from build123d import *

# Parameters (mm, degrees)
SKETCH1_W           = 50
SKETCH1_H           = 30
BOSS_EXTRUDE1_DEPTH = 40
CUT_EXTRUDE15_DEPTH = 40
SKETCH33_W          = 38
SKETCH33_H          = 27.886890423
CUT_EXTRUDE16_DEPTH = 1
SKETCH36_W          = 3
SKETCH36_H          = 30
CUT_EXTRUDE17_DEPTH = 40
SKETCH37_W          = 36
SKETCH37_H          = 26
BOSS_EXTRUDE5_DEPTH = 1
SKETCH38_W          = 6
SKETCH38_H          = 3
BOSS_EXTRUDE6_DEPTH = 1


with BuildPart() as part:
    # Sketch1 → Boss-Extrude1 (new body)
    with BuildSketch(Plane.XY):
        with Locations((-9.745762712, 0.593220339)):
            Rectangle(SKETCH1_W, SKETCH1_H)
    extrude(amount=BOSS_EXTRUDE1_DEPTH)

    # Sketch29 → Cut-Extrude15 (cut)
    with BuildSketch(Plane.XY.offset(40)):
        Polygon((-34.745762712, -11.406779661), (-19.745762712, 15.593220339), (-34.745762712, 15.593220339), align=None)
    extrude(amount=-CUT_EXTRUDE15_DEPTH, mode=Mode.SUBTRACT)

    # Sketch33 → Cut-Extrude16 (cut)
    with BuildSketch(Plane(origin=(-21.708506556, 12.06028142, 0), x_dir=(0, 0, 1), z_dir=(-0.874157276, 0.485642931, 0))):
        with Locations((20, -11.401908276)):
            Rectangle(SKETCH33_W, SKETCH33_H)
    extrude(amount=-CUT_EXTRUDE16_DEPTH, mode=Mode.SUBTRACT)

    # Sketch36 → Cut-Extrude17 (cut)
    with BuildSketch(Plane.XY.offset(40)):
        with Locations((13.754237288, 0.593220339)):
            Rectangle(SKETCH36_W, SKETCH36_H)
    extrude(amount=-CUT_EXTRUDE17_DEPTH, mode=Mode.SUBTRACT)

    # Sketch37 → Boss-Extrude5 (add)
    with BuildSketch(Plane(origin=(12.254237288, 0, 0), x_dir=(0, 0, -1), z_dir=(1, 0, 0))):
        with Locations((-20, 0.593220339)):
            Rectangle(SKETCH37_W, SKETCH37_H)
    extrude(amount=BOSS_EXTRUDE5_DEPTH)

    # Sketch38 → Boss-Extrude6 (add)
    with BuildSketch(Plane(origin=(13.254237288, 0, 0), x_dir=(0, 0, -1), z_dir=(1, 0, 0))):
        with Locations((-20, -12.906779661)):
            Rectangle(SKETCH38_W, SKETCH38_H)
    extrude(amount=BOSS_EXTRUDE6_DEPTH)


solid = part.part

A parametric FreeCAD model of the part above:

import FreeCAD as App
import Part
import Sketcher
from FreeCAD import Vector
Q = App.Units.Quantity


def add_polygon(sketch, points):
    """Adds a closed chain of lines whose ends are joined by coincident constraints."""
    first, n = sketch.GeometryCount, len(points)
    for a, b in zip(points, points[1:] + points[:1]):
        sketch.addGeometry(Part.LineSegment(App.Vector(*a, 0), App.Vector(*b, 0)), False)
    for i in range(n):
        sketch.addConstraint(Sketcher.Constraint("Coincident", first + i, 2, first + (i + 1) % n, 1))

doc = App.newDocument("Part")
body = doc.addObject("PartDesign::Body", "Body")

sketch1 = doc.addObject("Sketcher::SketchObject", "Sketch")
body.addObject(sketch1)
sketch1.AttachmentSupport = (doc.XY_Plane, [""])
sketch1.MapMode = "FlatFace"
add_polygon(sketch1, [(-35, 16), (-35, -14), (15, -14), (15, 16)])
sketch1.addConstraint(Sketcher.Constraint("Vertical", 0))
sketch1.addConstraint(Sketcher.Constraint("Horizontal", 1))
sketch1.addConstraint(Sketcher.Constraint("Vertical", 2))
sketch1.addConstraint(Sketcher.Constraint("Horizontal", 3))
sketch1.addConstraint(Sketcher.Constraint("DistanceX", 1, 1, 1, 2, Q("50 mm")))
sketch1.addConstraint(Sketcher.Constraint("DistanceY", 0, 2, 0, 1, Q("30 mm")))
sketch1.addConstraint(Sketcher.Constraint("DistanceY", 0, 2, -1, 1, Q("14.40678 mm")))
sketch1.addConstraint(Sketcher.Constraint("DistanceX", 0, 2, -1, 1, Q("34.745763 mm")))
pad1 = doc.addObject("PartDesign::Pad", "Pad")
body.addObject(pad1)
pad1.Profile = sketch1
pad1.Length = 40

sketch2 = doc.addObject("Sketcher::SketchObject", "Sketch001")
body.addObject(sketch2)
sketch2.AttachmentSupport = (doc.XY_Plane, [""])
sketch2.MapMode = "FlatFace"
sketch2.AttachmentOffset = App.Placement(Vector(0, 0, 40), App.Rotation())
add_polygon(sketch2, [(-35, -11), (-20, 16), (-35, 16)])
sketch2.addConstraint(Sketcher.Constraint("Horizontal", 1))
sketch2.addConstraint(Sketcher.Constraint("Vertical", 2))
sketch2.addConstraint(Sketcher.Constraint("DistanceX", 1, 2, 1, 1, Q("15 mm")))
sketch2.addConstraint(Sketcher.Constraint("DistanceY", 2, 2, 2, 1, Q("27 mm")))
sketch2.addConstraint(Sketcher.Constraint("DistanceY", -1, 1, 0, 2, Q("15.59322 mm")))
sketch2.addConstraint(Sketcher.Constraint("DistanceX", 0, 2, -1, 1, Q("19.745763 mm")))
pocket1 = doc.addObject("PartDesign::Pocket", "Pocket")
body.addObject(pocket1)
pocket1.Profile = sketch2
pocket1.Length = 40

sketch3 = doc.addObject("Sketcher::SketchObject", "Sketch002")
body.addObject(sketch3)
sketch3.Placement = App.Placement(Vector(-21.708507, 12.060281, 0), App.Rotation(Vector(0, 0, 1), Vector(0.485642931, 0.874157276, 0), Vector(-0.874157276, 0.485642931, 0), "ZXY"))
add_polygon(sketch3, [(1, 3), (1, -25), (39, -25), (39, 3)])
sketch3.addConstraint(Sketcher.Constraint("Vertical", 0))
sketch3.addConstraint(Sketcher.Constraint("Horizontal", 1))
sketch3.addConstraint(Sketcher.Constraint("Vertical", 2))
sketch3.addConstraint(Sketcher.Constraint("Horizontal", 3))
sketch3.addConstraint(Sketcher.Constraint("DistanceX", 1, 1, 1, 2, Q("38 mm")))
sketch3.addConstraint(Sketcher.Constraint("DistanceX", -1, 1, 0, 2, Q("1 mm")))
sketch3.addConstraint(Sketcher.Constraint("DistanceY", 0, 2, 0, 1, Q("27.88689 mm")))
sketch3.addConstraint(Sketcher.Constraint("DistanceY", 0, 2, -1, 1, Q("25.345353 mm")))
pocket2 = doc.addObject("PartDesign::Pocket", "Pocket001")
body.addObject(pocket2)
pocket2.Profile = sketch3
pocket2.Length = 1

sketch4 = doc.addObject("Sketcher::SketchObject", "Sketch003")
body.addObject(sketch4)
sketch4.AttachmentSupport = (doc.XY_Plane, [""])
sketch4.MapMode = "FlatFace"
sketch4.AttachmentOffset = App.Placement(Vector(0, 0, 40), App.Rotation())
add_polygon(sketch4, [(12.3, 15.6), (12.3, -14.4), (15.3, -14.4), (15.3, 15.6)])
sketch4.addConstraint(Sketcher.Constraint("Vertical", 0))
sketch4.addConstraint(Sketcher.Constraint("Horizontal", 1))
sketch4.addConstraint(Sketcher.Constraint("Vertical", 2))
sketch4.addConstraint(Sketcher.Constraint("Horizontal", 3))
sketch4.addConstraint(Sketcher.Constraint("DistanceX", 1, 1, 1, 2, Q("3 mm")))
sketch4.addConstraint(Sketcher.Constraint("DistanceY", 0, 2, 0, 1, Q("30 mm")))
sketch4.addConstraint(Sketcher.Constraint("DistanceY", 0, 2, -1, 1, Q("14.40678 mm")))
sketch4.addConstraint(Sketcher.Constraint("DistanceX", -1, 1, 0, 2, Q("12.254237 mm")))
pocket3 = doc.addObject("PartDesign::Pocket", "Pocket002")
body.addObject(pocket3)
pocket3.Profile = sketch4
pocket3.Length = 40

sketch5 = doc.addObject("Sketcher::SketchObject", "Sketch004")
body.addObject(sketch5)
sketch5.AttachmentSupport = (doc.YZ_Plane, [""])
sketch5.MapMode = "FlatFace"
sketch5.AttachmentOffset = App.Placement(Vector(0, 0, 12.254237), App.Rotation())
add_polygon(sketch5, [(14, 38), (-12, 38), (-12, 2), (14, 2)])
sketch5.addConstraint(Sketcher.Constraint("Horizontal", 0))
sketch5.addConstraint(Sketcher.Constraint("Vertical", 1))
sketch5.addConstraint(Sketcher.Constraint("Horizontal", 2))
sketch5.addConstraint(Sketcher.Constraint("Vertical", 3))
sketch5.addConstraint(Sketcher.Constraint("DistanceX", 0, 2, 0, 1, Q("26 mm")))
sketch5.addConstraint(Sketcher.Constraint("DistanceY", 1, 2, 1, 1, Q("36 mm")))
sketch5.addConstraint(Sketcher.Constraint("DistanceY", -1, 1, 0, 2, Q("38 mm")))
sketch5.addConstraint(Sketcher.Constraint("DistanceX", 0, 2, -1, 1, Q("12.40678 mm")))
pad2 = doc.addObject("PartDesign::Pad", "Pad001")
body.addObject(pad2)
pad2.Profile = sketch5
pad2.Length = 1

sketch6 = doc.addObject("Sketcher::SketchObject", "Sketch005")
body.addObject(sketch6)
sketch6.AttachmentSupport = (doc.YZ_Plane, [""])
sketch6.MapMode = "FlatFace"
sketch6.AttachmentOffset = App.Placement(Vector(0, 0, 13.254237), App.Rotation())
add_polygon(sketch6, [(-11.4, 23), (-14.4, 23), (-14.4, 17), (-11.4, 17)])
sketch6.addConstraint(Sketcher.Constraint("Horizontal", 0))
sketch6.addConstraint(Sketcher.Constraint("Vertical", 1))
sketch6.addConstraint(Sketcher.Constraint("Horizontal", 2))
sketch6.addConstraint(Sketcher.Constraint("Vertical", 3))
sketch6.addConstraint(Sketcher.Constraint("DistanceX", 0, 2, 0, 1, Q("3 mm")))
sketch6.addConstraint(Sketcher.Constraint("DistanceY", 1, 2, 1, 1, Q("6 mm")))
sketch6.addConstraint(Sketcher.Constraint("DistanceY", -1, 1, 0, 2, Q("23 mm")))
sketch6.addConstraint(Sketcher.Constraint("DistanceX", 0, 2, -1, 1, Q("14.40678 mm")))
pad3 = doc.addObject("PartDesign::Pad", "Pad002")
body.addObject(pad3)
pad3.Profile = sketch6
pad3.Length = 1

doc.recompute()
